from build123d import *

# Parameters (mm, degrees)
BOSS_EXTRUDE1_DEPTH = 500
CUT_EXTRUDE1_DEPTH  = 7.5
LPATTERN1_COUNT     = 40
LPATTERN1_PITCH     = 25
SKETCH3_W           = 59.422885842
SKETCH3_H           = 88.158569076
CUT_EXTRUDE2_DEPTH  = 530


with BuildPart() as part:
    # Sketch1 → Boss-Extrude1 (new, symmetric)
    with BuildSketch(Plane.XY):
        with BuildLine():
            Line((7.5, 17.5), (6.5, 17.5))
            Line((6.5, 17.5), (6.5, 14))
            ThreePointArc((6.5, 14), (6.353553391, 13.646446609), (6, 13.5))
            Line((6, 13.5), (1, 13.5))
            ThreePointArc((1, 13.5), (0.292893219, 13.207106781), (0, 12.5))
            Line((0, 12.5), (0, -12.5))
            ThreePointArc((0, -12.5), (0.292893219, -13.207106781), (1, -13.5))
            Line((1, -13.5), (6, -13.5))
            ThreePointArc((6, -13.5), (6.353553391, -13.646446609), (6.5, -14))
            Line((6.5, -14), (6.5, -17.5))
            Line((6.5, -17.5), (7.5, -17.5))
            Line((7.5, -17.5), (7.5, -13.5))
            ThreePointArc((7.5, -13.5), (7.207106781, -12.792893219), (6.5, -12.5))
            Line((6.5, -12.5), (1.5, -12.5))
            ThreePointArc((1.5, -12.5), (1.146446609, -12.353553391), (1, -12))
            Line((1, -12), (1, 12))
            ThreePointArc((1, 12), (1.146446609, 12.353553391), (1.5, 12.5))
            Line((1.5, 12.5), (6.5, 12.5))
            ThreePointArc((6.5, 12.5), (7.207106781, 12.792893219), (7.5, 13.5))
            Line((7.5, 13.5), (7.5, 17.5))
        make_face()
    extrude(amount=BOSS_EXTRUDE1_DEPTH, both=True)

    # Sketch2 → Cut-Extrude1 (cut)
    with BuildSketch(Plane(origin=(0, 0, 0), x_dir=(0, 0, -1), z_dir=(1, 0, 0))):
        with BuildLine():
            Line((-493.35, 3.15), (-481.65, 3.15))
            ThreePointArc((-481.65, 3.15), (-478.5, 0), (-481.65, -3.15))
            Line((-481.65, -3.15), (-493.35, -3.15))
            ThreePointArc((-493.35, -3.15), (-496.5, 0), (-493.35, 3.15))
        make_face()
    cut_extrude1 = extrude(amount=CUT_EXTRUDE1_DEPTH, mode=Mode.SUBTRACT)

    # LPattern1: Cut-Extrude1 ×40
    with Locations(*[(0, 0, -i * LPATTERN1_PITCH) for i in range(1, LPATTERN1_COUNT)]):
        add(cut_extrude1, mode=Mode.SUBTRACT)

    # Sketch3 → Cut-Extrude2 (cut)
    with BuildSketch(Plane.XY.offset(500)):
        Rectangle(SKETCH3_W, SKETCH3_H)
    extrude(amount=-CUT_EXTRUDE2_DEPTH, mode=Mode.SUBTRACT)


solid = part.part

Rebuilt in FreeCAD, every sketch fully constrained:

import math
import FreeCAD as App
import Part
import Sketcher


def add_polygon(sketch, points):
    """Adds a closed chain of lines whose ends are joined by coincident constraints."""
    first, n = sketch.GeometryCount, len(points)
    for a, b in zip(points, points[1:] + points[:1]):
        sketch.addGeometry(Part.LineSegment(App.Vector(*a, 0), App.Vector(*b, 0)), False)
    for i in range(n):
        sketch.addConstraint(Sketcher.Constraint("Coincident", first + i, 2, first + (i + 1) % n, 1))

doc = App.newDocument("Part")
body = doc.addObject("PartDesign::Body", "Body")

# Sketch on XY plane
sketch1 = body.newObject("Sketcher::SketchObject", "Sketch")
sketch1.AttachmentSupport = (doc.getObject("XY_Plane"), [""])
sketch1.MapMode = "FlatFace"
sketch1.addGeometry(Part.LineSegment(App.Vector(7.5, 17.5, 0), App.Vector(6.5, 17.5, 0)), False)
sketch1.addGeometry(Part.LineSegment(App.Vector(6.5, 17.5, 0), App.Vector(6.5, 14, 0)), False)
sketch1.addGeometry(Part.ArcOfCircle(Part.Circle(App.Vector(6, 14, 0), App.Vector(0, 0, 1), 0.5), math.radians(-90), math.radians(0)), False)
sketch1.addGeometry(Part.LineSegment(App.Vector(6, 13.5, 0), App.Vector(1, 13.5, 0)), False)
sketch1.addGeometry(Part.ArcOfCircle(Part.Circle(App.Vector(1, 12.5, 0), App.Vector(0, 0, 1), 1), math.radians(90), math.radians(180)), False)
sketch1.addGeometry(Part.LineSegment(App.Vector(0, 12.5, 0), App.Vector(0, -12.5, 0)), False)
sketch1.addGeometry(Part.ArcOfCircle(Part.Circle(App.Vector(1, -12.5, 0), App.Vector(0, 0, 1), 1), math.radians(-180), math.radians(-90)), False)
sketch1.addGeometry(Part.LineSegment(App.Vector(1, -13.5, 0), App.Vector(6, -13.5, 0)), False)
sketch1.addGeometry(Part.ArcOfCircle(Part.Circle(App.Vector(6, -14, 0), App.Vector(0, 0, 1), 0.5), math.radians(0), math.radians(90)), False)
sketch1.addGeometry(Part.LineSegment(App.Vector(6.5, -14, 0), App.Vector(6.5, -17.5, 0)), False)
sketch1.addGeometry(Part.LineSegment(App.Vector(6.5, -17.5, 0), App.Vector(7.5, -17.5, 0)), False)
sketch1.addGeometry(Part.LineSegment(App.Vector(7.5, -17.5, 0), App.Vector(7.5, -13.5, 0)), False)
sketch1.addGeometry(Part.ArcOfCircle(Part.Circle(App.Vector(6.5, -13.5, 0), App.Vector(0, 0, 1), 1), math.radians(0), math.radians(90)), False)
sketch1.addGeometry(Part.LineSegment(App.Vector(6.5, -12.5, 0), App.Vector(1.5, -12.5, 0)), False)
sketch1.addGeometry(Part.ArcOfCircle(Part.Circle(App.Vector(1.5, -12, 0), App.Vector(0, 0, 1), 0.5), math.radians(180), math.radians(270)), False)
sketch1.addGeometry(Part.LineSegment(App.Vector(1, -12, 0), App.Vector(1, 12, 0)), False)
sketch1.addGeometry(Part.ArcOfCircle(Part.Circle(App.Vector(1.5, 12, 0), App.Vector(0, 0, 1), 0.5), math.radians(90), math.radians(180)), False)
sketch1.addGeometry(Part.LineSegment(App.Vector(1.5, 12.5, 0), App.Vector(6.5, 12.5, 0)), False)
sketch1.addGeometry(Part.ArcOfCircle(Part.Circle(App.Vector(6.5, 13.5, 0), App.Vector(0, 0, 1), 1), math.radians(-90), math.radians(0)), False)
sketch1.addGeometry(Part.LineSegment(App.Vector(7.5, 13.5, 0), App.Vector(7.5, 17.5, 0)), False)
sketch1.addConstraint(Sketcher.Constraint("Coincident", 0, 2, 1, 1))
sketch1.addConstraint(Sketcher.Constraint("Tangent", 1, 2, 2, 2))
sketch1.addConstraint(Sketcher.Constraint("Tangent", 2, 1, 3, 1))
sketch1.addConstraint(Sketcher.Constraint("Tangent", 3, 2, 4, 1))
sketch1.addConstraint(Sketcher.Constraint("Tangent", 4, 2, 5, 1))
sketch1.addConstraint(Sketcher.Constraint("Tangent", 5, 2, 6, 1))
sketch1.addConstraint(Sketcher.Constraint("Tangent", 6, 2, 7, 1))
sketch1.addConstraint(Sketcher.Constraint("Tangent", 7, 2, 8, 2))
sketch1.addConstraint(Sketcher.Constraint("Tangent", 8, 1, 9, 1))
sketch1.addConstraint(Sketcher.Constraint("Coincident", 9, 2, 10, 1))
sketch1.addConstraint(Sketcher.Constraint("Coincident", 10, 2, 11, 1))
sketch1.addConstraint(Sketcher.Constraint("Tangent", 11, 2, 12, 1))
sketch1.addConstraint(Sketcher.Constraint("Tangent", 12, 2, 13, 1))
sketch1.addConstraint(Sketcher.Constraint("Tangent", 13, 2, 14, 2))
sketch1.addConstraint(Sketcher.Constraint("Tangent", 14, 1, 15, 1))
sketch1.addConstraint(Sketcher.Constraint("Tangent", 15, 2, 16, 2))
sketch1.addConstraint(Sketcher.Constraint("Tangent", 16, 1, 17, 1))
sketch1.addConstraint(Sketcher.Constraint("Tangent", 17, 2, 18, 1))
sketch1.addConstraint(Sketcher.Constraint("Tangent", 18, 2, 19, 1))
sketch1.addConstraint(Sketcher.Constraint("Coincident", 19, 2, 0, 1))
sketch1.addConstraint(Sketcher.Constraint("Horizontal", 0))
sketch1.addConstraint(Sketcher.Constraint("Vertical", 1))
sketch1.addConstraint(Sketcher.Constraint("Horizontal", 3))
sketch1.addConstraint(Sketcher.Constraint("Vertical", 5))
sketch1.addConstraint(Sketcher.Constraint("Horizontal", 7))
sketch1.addConstraint(Sketcher.Constraint("Vertical", 9))
sketch1.addConstraint(Sketcher.Constraint("Horizontal", 10))
sketch1.addConstraint(Sketcher.Constraint("Vertical", 11))
sketch1.addConstraint(Sketcher.Constraint("Horizontal", 13))
sketch1.addConstraint(Sketcher.Constraint("Vertical", 15))
sketch1.addConstraint(Sketcher.Constraint("Horizontal", 17))
sketch1.addConstraint(Sketcher.Constraint("Vertical", 19))
sketch1.addConstraint(Sketcher.Constraint("Equal", 4, 6))
sketch1.addConstraint(Sketcher.Constraint("Equal", 2, 8))
sketch1.addConstraint(Sketcher.Constraint("Equal", 6, 12))
sketch1.addConstraint(Sketcher.Constraint("Equal", 8, 14))
sketch1.addConstraint(Sketcher.Constraint("Equal", 14, 16))
sketch1.addConstraint(Sketcher.Constraint("Equal", 12, 18))
sketch1.addConstraint(Sketcher.Constraint("Symmetric", 4, 2, 5, 2, -1, 1))
sketch1.addConstraint(Sketcher.Constraint("Symmetric", 12, 3, 18, 3, -1))
sketch1.addConstraint(Sketcher.Constraint("Symmetric", 0, 2, 9, 2, -1))
sketch1.addConstraint(Sketcher.Constraint("Horizontal", 18, 3, 2, 1))
sketch1.addConstraint(Sketcher.Constraint("Vertical", 18, 3, 0, 2))
sketch1.addConstraint(Sketcher.Constraint("Vertical", 6, 2, 14, 1))
sketch1.addConstraint(Sketcher.Constraint("Radius", 4, 1.0))
sketch1.addConstraint(Sketcher.Constraint("Radius", 2, 0.5))
sketch1.addConstraint(Sketcher.Constraint("DistanceX", 3, 2, 3, 1, 5.0))
sketch1.addConstraint(Sketcher.Constraint("DistanceY", 5, 2, 5, 1, 25.0))
sketch1.addConstraint(Sketcher.Constraint("DistanceY", 11, 1, 11, 2, 4.0))
pad1 = body.newObject("PartDesign::Pad", "Pad")
pad1.Profile = sketch1
pad1.Length = 1000
pad1.Midplane = True

# Sketch on YZ plane
sketch2 = body.newObject("Sketcher::SketchObject", "Sketch001")
sketch2.AttachmentSupport = (doc.getObject("YZ_Plane"), [""])
sketch2.MapMode = "FlatFace"
sketch2.addGeometry(Part.LineSegment(App.Vector(3.1, 481.6, 0), App.Vector(3.1, 493.4, 0)), False)
sketch2.addGeometry(Part.ArcOfCircle(Part.Circle(App.Vector(0, 493.4, 0), App.Vector(0, 0, 1), 3.1), math.radians(0), math.radians(180)), False)
sketch2.addGeometry(Part.LineSegment(App.Vector(-3.1, 493.4, 0), App.Vector(-3.1, 481.6, 0)), False)
sketch2.addGeometry(Part.ArcOfCircle(Part.Circle(App.Vector(0, 481.6, 0), App.Vector(0, 0, 1), 3.1), math.radians(180), math.radians(360)), False)
sketch2.addConstraint(Sketcher.Constraint("Tangent", 0, 2, 1, 1))
sketch2.addConstraint(Sketcher.Constraint("Tangent", 1, 2, 2, 1))
sketch2.addConstraint(Sketcher.Constraint("Tangent", 2, 2, 3, 1))
sketch2.addConstraint(Sketcher.Constraint("Tangent", 3, 2, 0, 1))
sketch2.addConstraint(Sketcher.Constraint("Vertical", 0))
sketch2.addConstraint(Sketcher.Constraint("Vertical", 2))
sketch2.addConstraint(Sketcher.Constraint("PointOnObject", 1, 3, -2))
sketch2.addConstraint(Sketcher.Constraint("Radius", 1, 3.15))
sketch2.addConstraint(Sketcher.Constraint("DistanceY", 0, 1, 0, 2, 11.7))
sketch2.addConstraint(Sketcher.Constraint("DistanceY", -1, 1, 1, 3, 493.35))
pocket1 = body.newObject("PartDesign::Pocket", "Pocket")
pocket1.Profile = sketch2
pocket1.Length = 7.5
pocket1.Reversed = True
doc.recompute()

linearpattern = body.newObject("PartDesign::LinearPattern", "LinearPattern")
linearpattern.Originals = [pocket1]
linearpattern.Direction = (doc.getObject("Z_Axis"), [""])
linearpattern.Mode = "offset"
linearpattern.Offset = 25
linearpattern.Occurrences = 40
linearpattern.Reversed = True
body.Tip = linearpattern

# Sketch on XY plane
sketch3 = body.newObject("Sketcher::SketchObject", "Sketch002")
sketch3.AttachmentSupport = (doc.getObject("XY_Plane"), [""])
sketch3.MapMode = "FlatFace"
sketch3.AttachmentOffset = App.Placement(App.Vector(0, 0, 500), App.Rotation())
add_polygon(sketch3, [(-30, 44), (-30, -44), (30, -44), (30, 44)])  # lines 0-3
sketch3.addConstraint(Sketcher.Constraint("Vertical", 0))
sketch3.addConstraint(Sketcher.Constraint("Horizontal", 1))
sketch3.addConstraint(Sketcher.Constraint("Vertical", 2))
sketch3.addConstraint(Sketcher.Constraint("Horizontal", 3))
sketch3.addConstraint(Sketcher.Constraint("Symmetric", 0, 2, 2, 2, -1, 1))
sketch3.addConstraint(Sketcher.Constraint("DistanceY", 0, 2, 0, 1, 88.158569))
sketch3.addConstraint(Sketcher.Constraint("DistanceX", 1, 1, 1, 2, 59.422886))
pocket2 = body.newObject("PartDesign::Pocket", "Pocket001")
pocket2.Profile = sketch3
pocket2.Length = 530

doc.recompute()
